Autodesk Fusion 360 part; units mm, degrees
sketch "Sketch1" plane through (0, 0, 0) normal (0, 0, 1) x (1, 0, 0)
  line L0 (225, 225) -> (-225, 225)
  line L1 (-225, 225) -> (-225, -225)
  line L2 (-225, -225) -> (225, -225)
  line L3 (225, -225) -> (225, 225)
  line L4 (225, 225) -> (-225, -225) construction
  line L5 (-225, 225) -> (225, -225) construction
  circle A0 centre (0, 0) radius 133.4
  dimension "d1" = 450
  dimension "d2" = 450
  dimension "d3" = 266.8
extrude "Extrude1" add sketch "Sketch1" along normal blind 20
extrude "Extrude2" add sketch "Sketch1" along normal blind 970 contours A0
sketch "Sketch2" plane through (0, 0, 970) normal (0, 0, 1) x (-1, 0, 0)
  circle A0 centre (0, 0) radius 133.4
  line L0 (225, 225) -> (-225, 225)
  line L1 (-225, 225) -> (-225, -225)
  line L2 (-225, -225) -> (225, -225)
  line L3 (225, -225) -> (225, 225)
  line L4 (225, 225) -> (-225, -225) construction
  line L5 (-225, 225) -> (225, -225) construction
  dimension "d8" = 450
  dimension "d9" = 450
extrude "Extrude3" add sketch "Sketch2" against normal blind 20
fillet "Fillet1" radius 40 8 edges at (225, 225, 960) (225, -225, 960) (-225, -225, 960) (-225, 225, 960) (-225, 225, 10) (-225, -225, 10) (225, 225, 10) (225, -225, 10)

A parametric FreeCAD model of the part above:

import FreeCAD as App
import Part
import Sketcher
from FreeCAD import Vector


def edges_at(feature, points):
    """Names of the edges that pass closest to the given points."""
    edges = feature.Shape.Edges
    near = lambda p: min(range(len(edges)), key=lambda i: edges[i].distToShape(Part.Vertex(*p))[0])
    return sorted({f"Edge{near(p) + 1}" for p in points})

doc = App.newDocument("Part")
body = doc.addObject("PartDesign::Body", "Body")

# Sketch on XY plane
sketch1 = body.newObject("Sketcher::SketchObject", "Sketch")
sketch1.AttachmentSupport = (doc.getObject("XY_Plane"), [""])
sketch1.MapMode = "FlatFace"
sketch1.addGeometry([
    Part.LineSegment(Vector(225, -225, 0), Vector(225, 225, 0)),  # 0
    Part.LineSegment(Vector(225, 225, 0), Vector(-225, 225, 0)),  # 1
    Part.LineSegment(Vector(-225, 225, 0), Vector(-225, -225, 0)),  # 2
    Part.LineSegment(Vector(-225, -225, 0), Vector(225, -225, 0)),  # 3
    Part.Circle(Vector(0, 0, 0), Vector(0, 0, 1), 133),  # 4
], False)
sketch1.addConstraint([
    Sketcher.Constraint("Coincident", 0, 2, 1, 1),
    Sketcher.Constraint("Coincident", 1, 2, 2, 1),
    Sketcher.Constraint("Coincident", 2, 2, 3, 1),
    Sketcher.Constraint("Coincident", 3, 2, 0, 1),
    Sketcher.Constraint("Vertical", 0),
    Sketcher.Constraint("Horizontal", 1),
    Sketcher.Constraint("Vertical", 2),
    Sketcher.Constraint("Horizontal", 3),
    Sketcher.Constraint("Coincident", 4, 3, -1, 1),
    Sketcher.Constraint("Symmetric", 0, 2, 2, 2, -1, 1),
    Sketcher.Constraint("Equal", 3, 0),
    Sketcher.Constraint("Diameter", 4, 266.8),
    Sketcher.Constraint("DistanceX", 1, 2, 1, 1, 450.0),
])
pad1 = body.newObject("PartDesign::Pad", "Pad")
pad1.Profile = sketch1
pad1.Length = 20

# Sketch on XY plane
sketch2 = body.newObject("Sketcher::SketchObject", "Sketch001")
sketch2.AttachmentSupport = (doc.getObject("XY_Plane"), [""])
sketch2.MapMode = "FlatFace"
sketch2.addGeometry(Part.Circle(Vector(0, 0, 0), Vector(0, 0, 1), 133), False)
sketch2.addConstraint([
    Sketcher.Constraint("Coincident", 0, 3, -1, 1),
    Sketcher.Constraint("Diameter", 0, 266.8),
])
pad2 = body.newObject("PartDesign::Pad", "Pad001")
pad2.Profile = sketch2
pad2.Length = 970

# Sketch on XY plane
sketch3 = body.newObject("Sketcher::SketchObject", "Sketch002")
sketch3.AttachmentSupport = (doc.getObject("XY_Plane"), [""])
sketch3.MapMode = "FlatFace"
sketch3.AttachmentOffset = App.Placement(Vector(0, 0, 970), App.Rotation())
sketch3.addGeometry([
    Part.LineSegment(Vector(-225, 225, 0), Vector(-225, -225, 0)),  # 0
    Part.LineSegment(Vector(-225, -225, 0), Vector(225, -225, 0)),  # 1
    Part.LineSegment(Vector(225, -225, 0), Vector(225, 225, 0)),  # 2
    Part.LineSegment(Vector(225, 225, 0), Vector(-225, 225, 0)),  # 3
    Part.Circle(Vector(0, 0, 0), Vector(0, 0, 1), 133),  # 4
], False)
sketch3.addConstraint([
    Sketcher.Constraint("Coincident", 0, 2, 1, 1),
    Sketcher.Constraint("Coincident", 1, 2, 2, 1),
    Sketcher.Constraint("Coincident", 2, 2, 3, 1),
    Sketcher.Constraint("Coincident", 3, 2, 0, 1),
    Sketcher.Constraint("Vertical", 0),
    Sketcher.Constraint("Horizontal", 1),
    Sketcher.Constraint("Vertical", 2),
    Sketcher.Constraint("Horizontal", 3),
    Sketcher.Constraint("Coincident", 4, 3, -1, 1),
    Sketcher.Constraint("Symmetric", 0, 2, 2, 2, -1, 1),
    Sketcher.Constraint("Equal", 3, 0),
    Sketcher.Constraint("DistanceX", 1, 1, 1, 2, 450.0),
    Sketcher.Constraint("Diameter", 4, 266.8),
])
pad3 = body.newObject("PartDesign::Pad", "Pad002")
pad3.Profile = sketch3
pad3.Length = 20
pad3.Reversed = True
doc.recompute()

fillet = body.newObject("PartDesign::Fillet", "Fillet")
fillet.Base = (pad3, edges_at(pad3, [
    (225, 225, 960),
    (225, -225, 960),
    (-225, -225, 960),
    (-225, 225, 960),
    (-225, 225, 10),
    (-225, -225, 10),
    (225, 225, 10),
    (225, -225, 10),
]))
fillet.Radius = 40

doc.recompute()
